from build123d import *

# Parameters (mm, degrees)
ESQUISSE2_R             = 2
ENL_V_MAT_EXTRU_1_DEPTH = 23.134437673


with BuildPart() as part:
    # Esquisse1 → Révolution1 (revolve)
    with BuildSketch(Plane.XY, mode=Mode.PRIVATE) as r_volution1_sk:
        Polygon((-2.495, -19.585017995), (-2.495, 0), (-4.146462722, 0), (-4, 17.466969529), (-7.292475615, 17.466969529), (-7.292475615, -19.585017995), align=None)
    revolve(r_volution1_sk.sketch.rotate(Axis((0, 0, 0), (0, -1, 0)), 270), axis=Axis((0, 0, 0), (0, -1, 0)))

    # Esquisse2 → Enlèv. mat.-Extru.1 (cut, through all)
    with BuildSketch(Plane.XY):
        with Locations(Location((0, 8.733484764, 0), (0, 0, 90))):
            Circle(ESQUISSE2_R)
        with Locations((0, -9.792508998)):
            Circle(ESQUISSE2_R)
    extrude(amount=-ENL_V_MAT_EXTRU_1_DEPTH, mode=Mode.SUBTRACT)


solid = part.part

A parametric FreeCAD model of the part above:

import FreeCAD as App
import Part
import Sketcher
from FreeCAD import Vector

doc = App.newDocument("Part")
body = doc.addObject("PartDesign::Body", "Body")

# Sketch on XY plane
sketch1 = body.newObject("Sketcher::SketchObject", "Sketch")
sketch1.AttachmentSupport = (doc.getObject("XY_Plane"), [""])
sketch1.MapMode = "FlatFace"
sketch1.addGeometry([
    Part.LineSegment(Vector(-2.495, -19.585018, 0), Vector(-2.495, 0, 0)),  # 0
    Part.LineSegment(Vector(-2.495, 0, 0), Vector(-4.146463, 0, 0)),  # 1
    Part.LineSegment(Vector(-4.146463, 0, 0), Vector(-4, 17.46697, 0)),  # 2
    Part.LineSegment(Vector(-4, 17.46697, 0), Vector(-7.292476, 17.46697, 0)),  # 3
    Part.LineSegment(Vector(-7.292476, 17.46697, 0), Vector(-7.292476, -19.585018, 0)),  # 4
    Part.LineSegment(Vector(-7.292476, -19.585018, 0), Vector(-2.495, -19.585018, 0)),  # 5
], False)
sketch1.addConstraint([
    Sketcher.Constraint("Coincident", 0, 2, 1, 1),
    Sketcher.Constraint("Coincident", 1, 2, 2, 1),
    Sketcher.Constraint("Coincident", 2, 2, 3, 1),
    Sketcher.Constraint("Coincident", 3, 2, 4, 1),
    Sketcher.Constraint("Coincident", 4, 2, 5, 1),
    Sketcher.Constraint("Coincident", 5, 2, 0, 1),
    Sketcher.Constraint("Vertical", 0),
    Sketcher.Constraint("Horizontal", 1),
    Sketcher.Constraint("Horizontal", 3),
    Sketcher.Constraint("Vertical", 4),
    Sketcher.Constraint("Horizontal", 5),
    Sketcher.Constraint("PointOnObject", 0, 2, -1),
    Sketcher.Constraint("DistanceX", 2, 2, -1, 1, 4.0),
    Sketcher.Constraint("DistanceX", 0, 2, -1, 1, 2.495),
    Sketcher.Constraint("DistanceX", 1, 2, 1, 1, 1.651463),
    Sketcher.Constraint("DistanceX", 3, 2, 3, 1, 3.292476),
    Sketcher.Constraint("DistanceY", 0, 1, 0, 2, 19.585018),
    Sketcher.Constraint("DistanceY", 4, 2, 4, 1, 37.051988),
])
revolution = body.newObject("PartDesign::Revolution", "Revolution")
revolution.Profile = sketch1
revolution.ReferenceAxis = (sketch1, ["V_Axis"])
revolution.Angle = 360

# Sketch on XY plane
sketch2 = body.newObject("Sketcher::SketchObject", "Sketch001")
sketch2.AttachmentSupport = (doc.getObject("XY_Plane"), [""])
sketch2.MapMode = "FlatFace"
sketch2.addGeometry([
    Part.Circle(Vector(0, 8.733485, 0), Vector(0, 0, 1), 2),
    Part.Circle(Vector(0, -9.792509, 0), Vector(0, 0, 1), 2),
], False)
sketch2.addConstraint([
    Sketcher.Constraint("Equal", 0, 1),
    Sketcher.Constraint("PointOnObject", 0, 3, -2),
    Sketcher.Constraint("PointOnObject", 1, 3, -2),
    Sketcher.Constraint("Diameter", 0, 4.0),
    Sketcher.Constraint("DistanceY", 1, 3, -1, 1, 9.792509),
    Sketcher.Constraint("DistanceY", -1, 1, 0, 3, 8.733485),
])
pocket1 = body.newObject("PartDesign::Pocket", "Pocket")
pocket1.Profile = sketch2
pocket1.Type = "ThroughAll"

doc.recompute()
